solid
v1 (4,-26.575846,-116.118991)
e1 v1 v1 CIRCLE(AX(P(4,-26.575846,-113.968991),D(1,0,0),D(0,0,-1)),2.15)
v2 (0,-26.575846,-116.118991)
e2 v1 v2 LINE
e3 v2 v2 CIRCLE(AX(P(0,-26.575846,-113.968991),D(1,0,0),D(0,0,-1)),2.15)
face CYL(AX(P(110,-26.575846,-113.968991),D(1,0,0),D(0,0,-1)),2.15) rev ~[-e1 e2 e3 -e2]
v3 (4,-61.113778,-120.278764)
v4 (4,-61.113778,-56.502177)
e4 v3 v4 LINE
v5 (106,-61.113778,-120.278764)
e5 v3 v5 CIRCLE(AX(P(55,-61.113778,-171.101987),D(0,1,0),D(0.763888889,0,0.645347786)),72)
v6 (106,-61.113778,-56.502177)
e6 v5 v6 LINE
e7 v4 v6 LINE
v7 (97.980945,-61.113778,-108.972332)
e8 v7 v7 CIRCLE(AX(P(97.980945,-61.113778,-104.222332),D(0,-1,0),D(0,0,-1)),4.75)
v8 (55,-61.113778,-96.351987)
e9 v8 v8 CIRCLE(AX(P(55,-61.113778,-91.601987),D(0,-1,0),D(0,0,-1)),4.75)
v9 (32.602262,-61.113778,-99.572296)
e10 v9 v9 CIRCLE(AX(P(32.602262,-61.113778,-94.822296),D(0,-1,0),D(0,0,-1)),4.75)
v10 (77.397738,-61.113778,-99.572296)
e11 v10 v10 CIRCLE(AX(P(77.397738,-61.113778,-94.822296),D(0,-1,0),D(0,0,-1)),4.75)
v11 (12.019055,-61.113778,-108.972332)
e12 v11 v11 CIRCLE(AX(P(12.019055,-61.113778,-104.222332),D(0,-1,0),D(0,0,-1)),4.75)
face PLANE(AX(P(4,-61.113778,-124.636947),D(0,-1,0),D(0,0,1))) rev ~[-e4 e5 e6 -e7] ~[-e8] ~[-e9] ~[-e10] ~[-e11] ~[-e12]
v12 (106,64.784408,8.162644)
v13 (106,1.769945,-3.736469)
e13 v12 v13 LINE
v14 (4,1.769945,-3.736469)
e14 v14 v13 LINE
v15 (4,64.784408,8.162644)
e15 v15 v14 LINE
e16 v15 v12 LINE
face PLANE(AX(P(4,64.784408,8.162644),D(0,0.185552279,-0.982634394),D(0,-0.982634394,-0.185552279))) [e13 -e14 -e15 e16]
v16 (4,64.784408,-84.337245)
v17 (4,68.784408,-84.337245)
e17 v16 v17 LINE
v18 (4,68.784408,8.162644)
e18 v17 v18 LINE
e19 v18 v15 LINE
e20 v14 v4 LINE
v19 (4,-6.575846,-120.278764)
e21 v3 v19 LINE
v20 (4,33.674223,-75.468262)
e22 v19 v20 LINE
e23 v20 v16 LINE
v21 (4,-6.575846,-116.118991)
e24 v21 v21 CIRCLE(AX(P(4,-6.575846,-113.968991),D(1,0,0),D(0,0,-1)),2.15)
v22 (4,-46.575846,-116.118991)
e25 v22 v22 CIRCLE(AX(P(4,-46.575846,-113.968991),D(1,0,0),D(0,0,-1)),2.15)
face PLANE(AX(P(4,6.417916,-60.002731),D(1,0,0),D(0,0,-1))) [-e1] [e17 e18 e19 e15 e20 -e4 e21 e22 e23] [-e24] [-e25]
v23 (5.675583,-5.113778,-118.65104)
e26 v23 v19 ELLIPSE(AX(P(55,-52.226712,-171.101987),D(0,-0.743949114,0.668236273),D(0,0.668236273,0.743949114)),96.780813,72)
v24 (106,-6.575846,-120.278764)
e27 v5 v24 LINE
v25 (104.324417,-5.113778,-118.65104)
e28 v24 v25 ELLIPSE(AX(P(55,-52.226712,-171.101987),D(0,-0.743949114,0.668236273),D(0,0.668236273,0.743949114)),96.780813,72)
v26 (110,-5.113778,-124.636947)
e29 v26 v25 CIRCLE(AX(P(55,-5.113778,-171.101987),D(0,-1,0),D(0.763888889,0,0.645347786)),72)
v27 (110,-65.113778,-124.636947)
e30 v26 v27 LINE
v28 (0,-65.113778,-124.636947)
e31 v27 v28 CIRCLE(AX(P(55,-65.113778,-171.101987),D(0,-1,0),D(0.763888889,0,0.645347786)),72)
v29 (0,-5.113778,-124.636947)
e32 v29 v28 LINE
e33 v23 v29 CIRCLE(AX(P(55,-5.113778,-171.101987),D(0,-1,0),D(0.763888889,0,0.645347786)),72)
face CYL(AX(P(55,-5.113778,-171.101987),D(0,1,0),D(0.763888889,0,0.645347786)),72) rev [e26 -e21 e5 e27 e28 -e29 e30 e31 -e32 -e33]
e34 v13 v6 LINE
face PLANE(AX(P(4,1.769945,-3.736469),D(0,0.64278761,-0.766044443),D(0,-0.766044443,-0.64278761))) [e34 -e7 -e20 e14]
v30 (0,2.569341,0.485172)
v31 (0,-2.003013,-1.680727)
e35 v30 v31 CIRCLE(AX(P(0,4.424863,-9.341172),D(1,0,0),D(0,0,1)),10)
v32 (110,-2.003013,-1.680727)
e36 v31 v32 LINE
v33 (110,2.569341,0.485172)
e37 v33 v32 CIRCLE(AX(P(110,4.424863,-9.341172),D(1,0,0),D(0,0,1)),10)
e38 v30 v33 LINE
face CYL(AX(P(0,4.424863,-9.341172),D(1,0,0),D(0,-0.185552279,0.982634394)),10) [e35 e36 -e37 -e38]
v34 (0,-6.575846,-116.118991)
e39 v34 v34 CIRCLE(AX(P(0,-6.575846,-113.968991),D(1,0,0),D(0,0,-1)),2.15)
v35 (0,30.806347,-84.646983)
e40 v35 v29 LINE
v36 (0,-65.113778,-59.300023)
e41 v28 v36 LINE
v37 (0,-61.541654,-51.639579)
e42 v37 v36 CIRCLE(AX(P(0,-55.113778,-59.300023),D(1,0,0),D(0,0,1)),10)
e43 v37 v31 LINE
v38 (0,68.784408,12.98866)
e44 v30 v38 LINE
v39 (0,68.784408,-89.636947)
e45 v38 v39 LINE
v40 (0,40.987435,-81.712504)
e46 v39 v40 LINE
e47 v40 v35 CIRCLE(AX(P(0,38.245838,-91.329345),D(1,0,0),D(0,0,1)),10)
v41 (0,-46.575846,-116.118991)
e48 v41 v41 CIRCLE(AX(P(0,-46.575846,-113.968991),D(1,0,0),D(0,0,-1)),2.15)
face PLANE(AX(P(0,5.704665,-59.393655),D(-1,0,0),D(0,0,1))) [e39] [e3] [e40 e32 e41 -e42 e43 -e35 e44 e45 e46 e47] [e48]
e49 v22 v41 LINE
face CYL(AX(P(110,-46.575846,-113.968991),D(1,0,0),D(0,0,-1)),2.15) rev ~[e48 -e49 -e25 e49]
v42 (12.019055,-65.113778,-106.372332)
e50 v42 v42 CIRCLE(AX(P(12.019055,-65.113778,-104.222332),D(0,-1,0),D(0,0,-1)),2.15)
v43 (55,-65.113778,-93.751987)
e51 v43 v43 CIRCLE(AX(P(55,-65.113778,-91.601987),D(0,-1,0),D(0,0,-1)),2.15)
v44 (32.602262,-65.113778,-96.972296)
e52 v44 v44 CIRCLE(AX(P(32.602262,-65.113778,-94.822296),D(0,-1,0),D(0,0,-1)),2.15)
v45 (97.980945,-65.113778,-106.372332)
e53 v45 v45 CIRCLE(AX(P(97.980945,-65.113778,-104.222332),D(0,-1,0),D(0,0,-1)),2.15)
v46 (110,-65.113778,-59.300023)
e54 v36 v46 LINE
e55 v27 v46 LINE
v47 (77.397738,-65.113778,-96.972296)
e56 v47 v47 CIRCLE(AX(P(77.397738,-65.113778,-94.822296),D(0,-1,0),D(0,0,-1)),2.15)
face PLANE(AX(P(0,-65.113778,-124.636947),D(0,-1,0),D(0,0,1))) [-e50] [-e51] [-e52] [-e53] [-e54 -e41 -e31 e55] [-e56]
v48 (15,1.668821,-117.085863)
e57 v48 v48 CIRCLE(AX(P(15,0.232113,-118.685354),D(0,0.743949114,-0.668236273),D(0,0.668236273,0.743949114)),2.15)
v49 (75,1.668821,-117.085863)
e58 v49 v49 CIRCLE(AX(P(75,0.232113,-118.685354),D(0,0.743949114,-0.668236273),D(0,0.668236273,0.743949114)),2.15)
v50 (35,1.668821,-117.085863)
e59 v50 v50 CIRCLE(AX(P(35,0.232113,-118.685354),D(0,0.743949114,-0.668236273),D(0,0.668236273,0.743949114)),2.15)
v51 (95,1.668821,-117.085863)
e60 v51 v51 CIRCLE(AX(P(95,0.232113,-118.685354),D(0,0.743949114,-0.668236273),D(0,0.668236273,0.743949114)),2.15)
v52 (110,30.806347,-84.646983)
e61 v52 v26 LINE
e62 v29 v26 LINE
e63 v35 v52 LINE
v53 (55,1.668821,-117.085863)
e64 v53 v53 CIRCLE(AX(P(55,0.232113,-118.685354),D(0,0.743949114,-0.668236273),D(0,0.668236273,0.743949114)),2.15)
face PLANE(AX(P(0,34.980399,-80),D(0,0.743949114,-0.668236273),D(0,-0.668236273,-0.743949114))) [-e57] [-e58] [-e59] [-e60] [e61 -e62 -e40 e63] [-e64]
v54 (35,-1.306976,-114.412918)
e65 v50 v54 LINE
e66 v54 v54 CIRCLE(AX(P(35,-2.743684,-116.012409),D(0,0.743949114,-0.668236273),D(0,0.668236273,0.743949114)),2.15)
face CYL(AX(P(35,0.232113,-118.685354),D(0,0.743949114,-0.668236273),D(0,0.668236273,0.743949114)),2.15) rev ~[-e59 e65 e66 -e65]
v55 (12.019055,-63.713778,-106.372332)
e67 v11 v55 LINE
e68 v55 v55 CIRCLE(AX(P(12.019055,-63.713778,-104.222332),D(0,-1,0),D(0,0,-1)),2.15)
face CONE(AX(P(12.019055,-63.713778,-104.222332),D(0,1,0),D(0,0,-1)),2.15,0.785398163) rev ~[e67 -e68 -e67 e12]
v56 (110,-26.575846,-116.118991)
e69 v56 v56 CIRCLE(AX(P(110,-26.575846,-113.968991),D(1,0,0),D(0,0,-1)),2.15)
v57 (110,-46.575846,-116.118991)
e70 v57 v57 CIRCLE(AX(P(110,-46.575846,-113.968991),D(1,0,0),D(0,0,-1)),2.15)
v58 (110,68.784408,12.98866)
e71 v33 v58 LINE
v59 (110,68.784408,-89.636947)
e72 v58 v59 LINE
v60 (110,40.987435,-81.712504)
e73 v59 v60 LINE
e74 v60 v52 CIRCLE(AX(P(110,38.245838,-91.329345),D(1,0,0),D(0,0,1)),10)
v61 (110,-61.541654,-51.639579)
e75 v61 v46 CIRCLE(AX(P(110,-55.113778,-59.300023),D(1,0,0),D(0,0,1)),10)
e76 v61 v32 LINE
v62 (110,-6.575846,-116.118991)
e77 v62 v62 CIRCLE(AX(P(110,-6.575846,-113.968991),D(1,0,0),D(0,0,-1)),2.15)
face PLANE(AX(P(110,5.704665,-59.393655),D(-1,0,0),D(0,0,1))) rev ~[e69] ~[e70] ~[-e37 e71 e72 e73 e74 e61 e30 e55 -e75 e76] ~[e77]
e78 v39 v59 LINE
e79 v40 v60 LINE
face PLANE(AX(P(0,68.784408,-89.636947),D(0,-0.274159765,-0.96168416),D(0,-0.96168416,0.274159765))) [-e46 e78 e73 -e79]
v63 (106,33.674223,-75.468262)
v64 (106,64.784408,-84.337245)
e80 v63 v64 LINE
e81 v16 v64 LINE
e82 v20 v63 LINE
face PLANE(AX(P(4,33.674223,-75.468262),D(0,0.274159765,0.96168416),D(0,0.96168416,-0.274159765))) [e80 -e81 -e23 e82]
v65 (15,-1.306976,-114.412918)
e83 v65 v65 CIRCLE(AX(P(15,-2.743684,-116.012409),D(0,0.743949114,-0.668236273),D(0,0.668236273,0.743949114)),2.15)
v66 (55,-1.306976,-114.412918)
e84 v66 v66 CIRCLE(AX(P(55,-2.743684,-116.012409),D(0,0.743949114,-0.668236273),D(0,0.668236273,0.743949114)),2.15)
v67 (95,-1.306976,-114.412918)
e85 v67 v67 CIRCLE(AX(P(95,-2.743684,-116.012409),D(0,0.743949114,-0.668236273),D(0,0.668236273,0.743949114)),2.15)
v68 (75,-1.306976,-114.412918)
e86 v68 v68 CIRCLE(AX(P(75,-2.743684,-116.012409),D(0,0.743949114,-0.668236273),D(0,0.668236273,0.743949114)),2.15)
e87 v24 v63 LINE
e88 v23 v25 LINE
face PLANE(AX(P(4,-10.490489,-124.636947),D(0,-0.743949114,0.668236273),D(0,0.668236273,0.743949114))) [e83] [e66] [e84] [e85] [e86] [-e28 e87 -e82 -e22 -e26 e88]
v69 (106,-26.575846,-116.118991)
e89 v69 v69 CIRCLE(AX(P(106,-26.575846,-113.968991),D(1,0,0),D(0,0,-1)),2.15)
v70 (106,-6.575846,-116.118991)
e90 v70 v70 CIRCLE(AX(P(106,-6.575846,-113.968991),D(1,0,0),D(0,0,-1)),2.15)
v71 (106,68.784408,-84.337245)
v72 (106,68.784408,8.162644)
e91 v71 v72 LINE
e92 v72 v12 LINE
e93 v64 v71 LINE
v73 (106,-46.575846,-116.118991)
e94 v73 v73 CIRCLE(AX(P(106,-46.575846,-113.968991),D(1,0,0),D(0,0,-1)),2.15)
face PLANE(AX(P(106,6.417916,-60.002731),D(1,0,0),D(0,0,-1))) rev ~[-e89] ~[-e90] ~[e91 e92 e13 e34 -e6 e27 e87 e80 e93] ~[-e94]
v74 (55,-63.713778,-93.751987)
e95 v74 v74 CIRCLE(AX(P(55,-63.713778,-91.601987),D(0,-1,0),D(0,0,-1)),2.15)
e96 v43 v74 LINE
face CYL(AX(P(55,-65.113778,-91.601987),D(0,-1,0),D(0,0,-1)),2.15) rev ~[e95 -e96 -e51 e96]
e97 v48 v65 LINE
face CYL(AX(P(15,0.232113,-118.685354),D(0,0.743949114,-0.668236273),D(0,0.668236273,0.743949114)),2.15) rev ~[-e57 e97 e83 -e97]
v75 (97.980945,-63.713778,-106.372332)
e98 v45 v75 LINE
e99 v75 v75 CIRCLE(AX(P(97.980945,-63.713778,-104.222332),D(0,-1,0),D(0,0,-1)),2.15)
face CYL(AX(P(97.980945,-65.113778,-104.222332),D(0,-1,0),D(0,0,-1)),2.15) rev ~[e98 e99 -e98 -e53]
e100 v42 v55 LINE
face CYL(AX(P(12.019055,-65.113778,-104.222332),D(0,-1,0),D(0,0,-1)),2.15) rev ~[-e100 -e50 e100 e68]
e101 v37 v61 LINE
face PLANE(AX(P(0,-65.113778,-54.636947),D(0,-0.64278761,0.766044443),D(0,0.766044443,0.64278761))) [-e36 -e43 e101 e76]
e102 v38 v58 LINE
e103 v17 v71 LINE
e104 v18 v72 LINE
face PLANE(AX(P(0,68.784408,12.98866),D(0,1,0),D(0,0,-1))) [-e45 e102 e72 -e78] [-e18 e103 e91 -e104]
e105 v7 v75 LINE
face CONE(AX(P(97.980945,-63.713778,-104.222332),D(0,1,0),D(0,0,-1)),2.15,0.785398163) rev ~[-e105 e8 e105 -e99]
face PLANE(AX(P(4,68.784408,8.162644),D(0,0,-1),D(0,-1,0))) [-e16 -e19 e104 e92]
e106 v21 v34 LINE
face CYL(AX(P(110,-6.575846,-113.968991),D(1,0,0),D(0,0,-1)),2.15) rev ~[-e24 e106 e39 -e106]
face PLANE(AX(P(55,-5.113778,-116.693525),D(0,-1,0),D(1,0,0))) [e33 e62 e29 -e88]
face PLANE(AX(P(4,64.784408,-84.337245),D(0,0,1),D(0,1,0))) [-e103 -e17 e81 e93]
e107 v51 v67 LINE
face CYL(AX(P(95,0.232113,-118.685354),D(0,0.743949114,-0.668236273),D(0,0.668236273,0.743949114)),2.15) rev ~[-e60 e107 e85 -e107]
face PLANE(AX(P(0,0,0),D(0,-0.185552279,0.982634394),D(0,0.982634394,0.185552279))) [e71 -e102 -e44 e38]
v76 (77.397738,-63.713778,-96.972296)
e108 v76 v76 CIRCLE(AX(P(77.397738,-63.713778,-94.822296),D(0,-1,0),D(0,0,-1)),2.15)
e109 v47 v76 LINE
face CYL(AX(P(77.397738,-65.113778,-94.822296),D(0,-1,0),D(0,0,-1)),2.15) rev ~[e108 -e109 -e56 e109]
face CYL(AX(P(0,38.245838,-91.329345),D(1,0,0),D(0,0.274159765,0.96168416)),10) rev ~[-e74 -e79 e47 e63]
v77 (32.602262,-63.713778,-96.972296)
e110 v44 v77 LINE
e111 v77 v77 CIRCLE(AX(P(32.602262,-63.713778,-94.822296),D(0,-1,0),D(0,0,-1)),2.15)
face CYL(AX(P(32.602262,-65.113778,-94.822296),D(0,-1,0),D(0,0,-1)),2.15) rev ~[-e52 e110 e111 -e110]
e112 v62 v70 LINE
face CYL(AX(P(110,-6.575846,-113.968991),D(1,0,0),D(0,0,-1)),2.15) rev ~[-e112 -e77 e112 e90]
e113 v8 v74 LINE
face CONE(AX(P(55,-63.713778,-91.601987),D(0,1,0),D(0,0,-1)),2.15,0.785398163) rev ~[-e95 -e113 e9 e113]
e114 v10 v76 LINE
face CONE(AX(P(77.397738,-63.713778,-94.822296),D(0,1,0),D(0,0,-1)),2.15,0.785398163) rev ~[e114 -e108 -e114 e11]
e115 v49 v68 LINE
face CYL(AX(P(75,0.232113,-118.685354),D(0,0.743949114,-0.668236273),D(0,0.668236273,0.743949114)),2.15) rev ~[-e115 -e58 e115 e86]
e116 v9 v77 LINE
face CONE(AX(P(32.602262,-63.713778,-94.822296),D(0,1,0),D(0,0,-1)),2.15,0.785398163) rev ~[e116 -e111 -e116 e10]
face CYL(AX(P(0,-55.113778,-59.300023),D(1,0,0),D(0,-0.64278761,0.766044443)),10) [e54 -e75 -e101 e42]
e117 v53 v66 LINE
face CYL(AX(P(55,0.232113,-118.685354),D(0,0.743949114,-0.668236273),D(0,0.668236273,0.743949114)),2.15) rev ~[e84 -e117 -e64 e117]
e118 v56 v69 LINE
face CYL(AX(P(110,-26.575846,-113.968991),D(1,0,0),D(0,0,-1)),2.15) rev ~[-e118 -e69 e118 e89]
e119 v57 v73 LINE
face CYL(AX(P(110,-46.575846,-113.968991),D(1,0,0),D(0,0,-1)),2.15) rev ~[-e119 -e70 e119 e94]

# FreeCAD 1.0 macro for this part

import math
import FreeCAD as App
import Part
import Sketcher
from FreeCAD import Vector
Q = App.Units.Quantity


def edges_at(feature, points):
    """Names of the edges that pass closest to the given points."""
    edges = feature.Shape.Edges
    near = lambda p: min(range(len(edges)), key=lambda i: edges[i].distToShape(Part.Vertex(*p))[0])
    return sorted({f"Edge{near(p) + 1}" for p in points})


def add_polygon(sketch, points):
    """Adds a closed chain of lines whose ends are joined by coincident constraints."""
    first, n = sketch.GeometryCount, len(points)
    for a, b in zip(points, points[1:] + points[:1]):
        sketch.addGeometry(Part.LineSegment(App.Vector(*a, 0), App.Vector(*b, 0)), False)
    for i in range(n):
        sketch.addConstraint(Sketcher.Constraint("Coincident", first + i, 2, first + (i + 1) % n, 1))

doc = App.newDocument("Part")
body = doc.addObject("PartDesign::Body", "Body")

# Sketch on YZ plane
sketch1 = body.newObject("Sketcher::SketchObject", "Sketch")
sketch1.AttachmentSupport = (doc.getObject("YZ_Plane"), [""])
sketch1.MapMode = "FlatFace"
add_polygon(sketch1, [(69, -90), (69, 13), (0, 0), (-65, -55), (-65, -125), (-5, -125), (35, -80)])  # lines 0-6
sketch1.addConstraint([
    Sketcher.Constraint("Vertical", 0),
    Sketcher.Constraint("Vertical", 3),
    Sketcher.Constraint("Horizontal", 4),
    Sketcher.Constraint("Coincident", 1, 2, -1, 1),
    Sketcher.Constraint("DistanceX", 4, 1, 4, 2, Q("60 mm")),
    Sketcher.Constraint("DistanceY", 3, 2, 3, 1, Q("70 mm")),
    Sketcher.Constraint("Angle", 2, Q("-140 deg")),
    Sketcher.Constraint("Distance", 1, Q("70 mm")),
    Sketcher.Constraint("Distance", 2, Q("85 mm")),
    Sketcher.Constraint("Distance", 5, Q("60 mm")),
    Sketcher.Constraint("DistanceY", 5, 2, -1, 1, Q("80 mm")),
    Sketcher.Constraint("DistanceY", 4, 2, 6, 2, Q("35 mm")),
    Sketcher.Constraint("DistanceY", 0, 1, 0, 2, Q("102.625606 mm")),
])
pad1 = body.newObject("PartDesign::Pad", "Pad")
pad1.Profile = sketch1
pad1.Length = 110

# Sketch on YZ plane
sketch2 = body.newObject("Sketcher::SketchObject", "Sketch001")
sketch2.AttachmentSupport = (doc.getObject("YZ_Plane"), [""])
sketch2.MapMode = "FlatFace"
sketch2.AttachmentOffset = App.Placement(Vector(0, 0, 4), App.Rotation())
add_polygon(sketch2, [(68.8, -84.3), (64.8, -84.3), (33.7, -75.5), (-10.5, -124.6), (-61.1, -124.6), (-61.1, -56.5), (1.8, -3.7), (64.8, 8.2), (68.8, 8.2)])  # lines 0-8
sketch2.addConstraint([
    Sketcher.Constraint("Horizontal", 0),
    Sketcher.Constraint("Horizontal", 3),
    Sketcher.Constraint("Vertical", 4),
    Sketcher.Constraint("Horizontal", 7),
    Sketcher.Constraint("Vertical", 8),
    Sketcher.Constraint("Vertical", 0, 2, 6, 2),
    Sketcher.Constraint("DistanceX", 0, 2, 0, 1, Q("4 mm")),
    Sketcher.Constraint("Angle", 5, Q("40 deg")),
    Sketcher.Constraint("DistanceX", 3, 2, 1, 2, Q("94.788001 mm")),
    Sketcher.Constraint("DistanceX", 3, 2, 3, 1, Q("50.623288 mm")),
    Sketcher.Constraint("DistanceY", 4, 1, 4, 2, Q("68.134769 mm")),
    Sketcher.Constraint("DistanceY", 8, 2, 8, 1, Q("92.499889 mm")),
    Sketcher.Constraint("DistanceY", 2, 2, 0, 2, Q("40.299702 mm")),
    Sketcher.Constraint("Distance", 1, Q("32.34969 mm")),
    Sketcher.Constraint("Distance", 5, Q("82.08887 mm")),
    Sketcher.Constraint("DistanceY", 1, 2, -1, 1, Q("75.468262 mm")),
    Sketcher.Constraint("DistanceX", 2, 2, -1, 1, Q("10.490489 mm")),
    Sketcher.Constraint("DistanceY", 5, 2, -1, 1, Q("3.736469 mm")),
])
pocket1 = body.newObject("PartDesign::Pocket", "Pocket")
pocket1.Profile = sketch2
pocket1.Length = 102
pocket1.Reversed = True

# Sketch on XZ plane
sketch3 = body.newObject("Sketcher::SketchObject", "Sketch002")
sketch3.AttachmentSupport = (doc.getObject("XZ_Plane"), [""])
sketch3.MapMode = "FlatFace"
sketch3.AttachmentOffset = App.Placement(Vector(0, 0, 5.113778), App.Rotation())
sketch3.addGeometry([
    Part.LineSegment(Vector(0, -125, 0), Vector(110, -125, 0)),
    Part.ArcOfCircle(Part.Circle(Vector(55, -171, 0), Vector(0, 0, 1), 72), math.radians(40), math.radians(140)),
], False)
sketch3.addConstraint([
    Sketcher.Constraint("Coincident", 0, 1, 1, 2),
    Sketcher.Constraint("Coincident", 1, 1, 0, 2),
    Sketcher.Constraint("Horizontal", 0),
    Sketcher.Constraint("PointOnObject", 0, 1, -2),
    Sketcher.Constraint("Radius", 1, Q("72 mm")),
    Sketcher.Constraint("DistanceX", 0, 1, 0, 2, Q("110 mm")),
    Sketcher.Constraint("DistanceY", 1, 3, -1, 1, Q("171.101987 mm")),
])
pocket2 = body.newObject("PartDesign::Pocket", "Pocket001")
pocket2.Profile = sketch3
pocket2.Length = 60
pocket2.Reversed = True
doc.recompute()

fillet = body.newObject("PartDesign::Fillet", "Fillet")
fillet.Base = (pocket2, edges_at(pocket2, [(55, 34.98, -80), (55, -65.114, -54.637), (55, 0, 0)]))
fillet.Radius = 10

# Sketch on XZ plane
sketch4 = body.newObject("Sketcher::SketchObject", "Sketch003")
sketch4.AttachmentSupport = (doc.getObject("XZ_Plane"), [""])
sketch4.MapMode = "FlatFace"
sketch4.AttachmentOffset = App.Placement(Vector(0, 0, 65.113778), App.Rotation())
sketch4.addGeometry([
    Part.Circle(Vector(55, -91.6, 0), Vector(0, 0, 1), 2.1),  # 0
    Part.Circle(Vector(77.4, -94.8, 0), Vector(0, 0, 1), 2.1),  # 1
    Part.Circle(Vector(98, -104.2, 0), Vector(0, 0, 1), 2.1),  # 2
    Part.Circle(Vector(-23.7, -159.8, 0), Vector(0, 0, 1), 2.1),  # 3
    Part.Circle(Vector(-17.3, -138.1, 0), Vector(0, 0, 1), 2.1),  # 4
    Part.Circle(Vector(-5.1, -119, 0), Vector(0, 0, 1), 2.1),  # 5
    Part.Circle(Vector(12, -104.2, 0), Vector(0, 0, 1), 2.1),  # 6
    Part.Circle(Vector(32.6, -94.8, 0), Vector(0, 0, 1), 2.1),  # 7
], False)
sketch4.addConstraint([
    Sketcher.Constraint("Equal", 0, 1),
    Sketcher.Constraint("Equal", 1, 2),
    Sketcher.Constraint("Equal", 2, 3),
    Sketcher.Constraint("Equal", 3, 4),
    Sketcher.Constraint("Equal", 4, 5),
    Sketcher.Constraint("Equal", 5, 6),
    Sketcher.Constraint("Equal", 6, 7),
    Sketcher.Constraint("Horizontal", 2, 3, 6, 3),
    Sketcher.Constraint("Horizontal", 1, 3, 7, 3),
    Sketcher.Constraint("Diameter", 0, Q("4.3 mm")),
    Sketcher.Constraint("DistanceX", -1, 1, 0, 3, Q("55 mm")),
    Sketcher.Constraint("DistanceY", 3, 3, 5, 3, Q("40.747399 mm")),
    Sketcher.Constraint("DistanceX", 4, 3, 6, 3, Q("29.334799 mm")),
    Sketcher.Constraint("DistanceX", -1, 1, 1, 3, Q("77.397738 mm")),
    Sketcher.Constraint("DistanceY", 2, 3, -1, 1, Q("104.222332 mm")),
    Sketcher.Constraint("DistanceX", 5, 3, -1, 1, Q("5.082091 mm")),
    Sketcher.Constraint("DistanceY", 5, 3, -1, 1, Q("119.040559 mm")),
    Sketcher.Constraint("DistanceX", -1, 1, 7, 3, Q("32.602262 mm")),
    Sketcher.Constraint("DistanceY", 1, 3, 0, 3, Q("3.220309 mm")),
    Sketcher.Constraint("DistanceY", 3, 3, 0, 3, Q("68.18597 mm")),
    Sketcher.Constraint("DistanceX", 3, 3, 2, 3, Q("121.67175 mm")),
    Sketcher.Constraint("DistanceX", 3, 3, 4, 3, Q("6.375061 mm")),
    Sketcher.Constraint("DistanceX", 4, 3, 1, 3, Q("94.713482 mm")),
    Sketcher.Constraint("DistanceY", 4, 3, -1, 1, Q("138.076494 mm")),
])
pocket3 = body.newObject("PartDesign::Pocket", "Pocket002")
pocket3.Profile = sketch4
pocket3.Length = 4

# Sketch on an angled plane
sketch5 = body.newObject("Sketcher::SketchObject", "Sketch004")
sketch5.Placement = App.Placement(Vector(0, 59.130964, -53.113115), App.Rotation(Vector(1, 0, 0), Vector(0, -0.668236273, -0.743949114), Vector(0, 0.743949114, -0.668236273), "ZXY"))
sketch5.addGeometry([
    Part.Circle(Vector(55, 88.1, 0), Vector(0, 0, 1), 2.1),  # 0
    Part.Circle(Vector(75, 88.1, 0), Vector(0, 0, 1), 2.1),  # 1
    Part.Circle(Vector(95, 88.1, 0), Vector(0, 0, 1), 2.1),  # 2
    Part.Circle(Vector(35, 88.1, 0), Vector(0, 0, 1), 2.1),  # 3
    Part.Circle(Vector(15, 88.1, 0), Vector(0, 0, 1), 2.1),  # 4
], False)
sketch5.addConstraint([
    Sketcher.Constraint("Equal", 0, 1),
    Sketcher.Constraint("Equal", 1, 2),
    Sketcher.Constraint("Equal", 2, 3),
    Sketcher.Constraint("Equal", 3, 4),
    Sketcher.Constraint("Horizontal", 0, 3, 1, 3),
    Sketcher.Constraint("Horizontal", 1, 3, 2, 3),
    Sketcher.Constraint("Horizontal", 2, 3, 3, 3),
    Sketcher.Constraint("Horizontal", 3, 3, 4, 3),
    Sketcher.Constraint("Diameter", 0, Q("4.3 mm")),
    Sketcher.Constraint("DistanceX", -1, 1, 0, 3, Q("55 mm")),
    Sketcher.Constraint("DistanceX", -1, 1, 1, 3, Q("75 mm")),
    Sketcher.Constraint("DistanceX", -1, 1, 2, 3, Q("95 mm")),
    Sketcher.Constraint("DistanceX", -1, 1, 3, 3, Q("35 mm")),
    Sketcher.Constraint("DistanceX", -1, 1, 4, 3, Q("15 mm")),
    Sketcher.Constraint("DistanceY", -1, 1, 0, 3, Q("88.140758 mm")),
])
pocket4 = body.newObject("PartDesign::Pocket", "Pocket003")
pocket4.Profile = sketch5
pocket4.Length = 4
doc.recompute()

chamfer = body.newObject("PartDesign::Chamfer", "Chamfer")
chamfer.Base = (pocket4, edges_at(pocket4, [
    (97.981, -61.114, -102.072),
    (77.398, -61.114, -92.672),
    (12.019, -61.114, -102.072),
    (32.602, -61.114, -92.672),
    (55, -61.114, -89.452),
]))
chamfer.Size = 2.6

# Sketch on YZ plane
sketch6 = body.newObject("Sketcher::SketchObject", "Sketch005")
sketch6.AttachmentSupport = (doc.getObject("YZ_Plane"), [""])
sketch6.MapMode = "FlatFace"
sketch6.AttachmentOffset = App.Placement(Vector(0, 0, 110), App.Rotation())
sketch6.addGeometry([
    Part.Circle(Vector(-26.6, -114, 0), Vector(0, 0, 1), 2.1),
    Part.Circle(Vector(-6.6, -114, 0), Vector(0, 0, 1), 2.1),
    Part.Circle(Vector(-46.6, -114, 0), Vector(0, 0, 1), 2.1),
], False)
sketch6.addConstraint([
    Sketcher.Constraint("Equal", 0, 1),
    Sketcher.Constraint("Equal", 1, 2),
    Sketcher.Constraint("Horizontal", 0, 3, 1, 3),
    Sketcher.Constraint("Horizontal", 1, 3, 2, 3),
    Sketcher.Constraint("Diameter", 0, Q("4.3 mm")),
    Sketcher.Constraint("DistanceX", 0, 3, 1, 3, Q("20 mm")),
    Sketcher.Constraint("DistanceX", 2, 3, 0, 3, Q("20 mm")),
    Sketcher.Constraint("DistanceY", 0, 3, -1, 1, Q("113.968991 mm")),
    Sketcher.Constraint("DistanceX", 0, 3, -1, 1, Q("26.575846 mm")),
])
pocket5 = body.newObject("PartDesign::Pocket", "Pocket004")
pocket5.Profile = sketch6
pocket5.Type = "ThroughAll"

doc.recompute()
